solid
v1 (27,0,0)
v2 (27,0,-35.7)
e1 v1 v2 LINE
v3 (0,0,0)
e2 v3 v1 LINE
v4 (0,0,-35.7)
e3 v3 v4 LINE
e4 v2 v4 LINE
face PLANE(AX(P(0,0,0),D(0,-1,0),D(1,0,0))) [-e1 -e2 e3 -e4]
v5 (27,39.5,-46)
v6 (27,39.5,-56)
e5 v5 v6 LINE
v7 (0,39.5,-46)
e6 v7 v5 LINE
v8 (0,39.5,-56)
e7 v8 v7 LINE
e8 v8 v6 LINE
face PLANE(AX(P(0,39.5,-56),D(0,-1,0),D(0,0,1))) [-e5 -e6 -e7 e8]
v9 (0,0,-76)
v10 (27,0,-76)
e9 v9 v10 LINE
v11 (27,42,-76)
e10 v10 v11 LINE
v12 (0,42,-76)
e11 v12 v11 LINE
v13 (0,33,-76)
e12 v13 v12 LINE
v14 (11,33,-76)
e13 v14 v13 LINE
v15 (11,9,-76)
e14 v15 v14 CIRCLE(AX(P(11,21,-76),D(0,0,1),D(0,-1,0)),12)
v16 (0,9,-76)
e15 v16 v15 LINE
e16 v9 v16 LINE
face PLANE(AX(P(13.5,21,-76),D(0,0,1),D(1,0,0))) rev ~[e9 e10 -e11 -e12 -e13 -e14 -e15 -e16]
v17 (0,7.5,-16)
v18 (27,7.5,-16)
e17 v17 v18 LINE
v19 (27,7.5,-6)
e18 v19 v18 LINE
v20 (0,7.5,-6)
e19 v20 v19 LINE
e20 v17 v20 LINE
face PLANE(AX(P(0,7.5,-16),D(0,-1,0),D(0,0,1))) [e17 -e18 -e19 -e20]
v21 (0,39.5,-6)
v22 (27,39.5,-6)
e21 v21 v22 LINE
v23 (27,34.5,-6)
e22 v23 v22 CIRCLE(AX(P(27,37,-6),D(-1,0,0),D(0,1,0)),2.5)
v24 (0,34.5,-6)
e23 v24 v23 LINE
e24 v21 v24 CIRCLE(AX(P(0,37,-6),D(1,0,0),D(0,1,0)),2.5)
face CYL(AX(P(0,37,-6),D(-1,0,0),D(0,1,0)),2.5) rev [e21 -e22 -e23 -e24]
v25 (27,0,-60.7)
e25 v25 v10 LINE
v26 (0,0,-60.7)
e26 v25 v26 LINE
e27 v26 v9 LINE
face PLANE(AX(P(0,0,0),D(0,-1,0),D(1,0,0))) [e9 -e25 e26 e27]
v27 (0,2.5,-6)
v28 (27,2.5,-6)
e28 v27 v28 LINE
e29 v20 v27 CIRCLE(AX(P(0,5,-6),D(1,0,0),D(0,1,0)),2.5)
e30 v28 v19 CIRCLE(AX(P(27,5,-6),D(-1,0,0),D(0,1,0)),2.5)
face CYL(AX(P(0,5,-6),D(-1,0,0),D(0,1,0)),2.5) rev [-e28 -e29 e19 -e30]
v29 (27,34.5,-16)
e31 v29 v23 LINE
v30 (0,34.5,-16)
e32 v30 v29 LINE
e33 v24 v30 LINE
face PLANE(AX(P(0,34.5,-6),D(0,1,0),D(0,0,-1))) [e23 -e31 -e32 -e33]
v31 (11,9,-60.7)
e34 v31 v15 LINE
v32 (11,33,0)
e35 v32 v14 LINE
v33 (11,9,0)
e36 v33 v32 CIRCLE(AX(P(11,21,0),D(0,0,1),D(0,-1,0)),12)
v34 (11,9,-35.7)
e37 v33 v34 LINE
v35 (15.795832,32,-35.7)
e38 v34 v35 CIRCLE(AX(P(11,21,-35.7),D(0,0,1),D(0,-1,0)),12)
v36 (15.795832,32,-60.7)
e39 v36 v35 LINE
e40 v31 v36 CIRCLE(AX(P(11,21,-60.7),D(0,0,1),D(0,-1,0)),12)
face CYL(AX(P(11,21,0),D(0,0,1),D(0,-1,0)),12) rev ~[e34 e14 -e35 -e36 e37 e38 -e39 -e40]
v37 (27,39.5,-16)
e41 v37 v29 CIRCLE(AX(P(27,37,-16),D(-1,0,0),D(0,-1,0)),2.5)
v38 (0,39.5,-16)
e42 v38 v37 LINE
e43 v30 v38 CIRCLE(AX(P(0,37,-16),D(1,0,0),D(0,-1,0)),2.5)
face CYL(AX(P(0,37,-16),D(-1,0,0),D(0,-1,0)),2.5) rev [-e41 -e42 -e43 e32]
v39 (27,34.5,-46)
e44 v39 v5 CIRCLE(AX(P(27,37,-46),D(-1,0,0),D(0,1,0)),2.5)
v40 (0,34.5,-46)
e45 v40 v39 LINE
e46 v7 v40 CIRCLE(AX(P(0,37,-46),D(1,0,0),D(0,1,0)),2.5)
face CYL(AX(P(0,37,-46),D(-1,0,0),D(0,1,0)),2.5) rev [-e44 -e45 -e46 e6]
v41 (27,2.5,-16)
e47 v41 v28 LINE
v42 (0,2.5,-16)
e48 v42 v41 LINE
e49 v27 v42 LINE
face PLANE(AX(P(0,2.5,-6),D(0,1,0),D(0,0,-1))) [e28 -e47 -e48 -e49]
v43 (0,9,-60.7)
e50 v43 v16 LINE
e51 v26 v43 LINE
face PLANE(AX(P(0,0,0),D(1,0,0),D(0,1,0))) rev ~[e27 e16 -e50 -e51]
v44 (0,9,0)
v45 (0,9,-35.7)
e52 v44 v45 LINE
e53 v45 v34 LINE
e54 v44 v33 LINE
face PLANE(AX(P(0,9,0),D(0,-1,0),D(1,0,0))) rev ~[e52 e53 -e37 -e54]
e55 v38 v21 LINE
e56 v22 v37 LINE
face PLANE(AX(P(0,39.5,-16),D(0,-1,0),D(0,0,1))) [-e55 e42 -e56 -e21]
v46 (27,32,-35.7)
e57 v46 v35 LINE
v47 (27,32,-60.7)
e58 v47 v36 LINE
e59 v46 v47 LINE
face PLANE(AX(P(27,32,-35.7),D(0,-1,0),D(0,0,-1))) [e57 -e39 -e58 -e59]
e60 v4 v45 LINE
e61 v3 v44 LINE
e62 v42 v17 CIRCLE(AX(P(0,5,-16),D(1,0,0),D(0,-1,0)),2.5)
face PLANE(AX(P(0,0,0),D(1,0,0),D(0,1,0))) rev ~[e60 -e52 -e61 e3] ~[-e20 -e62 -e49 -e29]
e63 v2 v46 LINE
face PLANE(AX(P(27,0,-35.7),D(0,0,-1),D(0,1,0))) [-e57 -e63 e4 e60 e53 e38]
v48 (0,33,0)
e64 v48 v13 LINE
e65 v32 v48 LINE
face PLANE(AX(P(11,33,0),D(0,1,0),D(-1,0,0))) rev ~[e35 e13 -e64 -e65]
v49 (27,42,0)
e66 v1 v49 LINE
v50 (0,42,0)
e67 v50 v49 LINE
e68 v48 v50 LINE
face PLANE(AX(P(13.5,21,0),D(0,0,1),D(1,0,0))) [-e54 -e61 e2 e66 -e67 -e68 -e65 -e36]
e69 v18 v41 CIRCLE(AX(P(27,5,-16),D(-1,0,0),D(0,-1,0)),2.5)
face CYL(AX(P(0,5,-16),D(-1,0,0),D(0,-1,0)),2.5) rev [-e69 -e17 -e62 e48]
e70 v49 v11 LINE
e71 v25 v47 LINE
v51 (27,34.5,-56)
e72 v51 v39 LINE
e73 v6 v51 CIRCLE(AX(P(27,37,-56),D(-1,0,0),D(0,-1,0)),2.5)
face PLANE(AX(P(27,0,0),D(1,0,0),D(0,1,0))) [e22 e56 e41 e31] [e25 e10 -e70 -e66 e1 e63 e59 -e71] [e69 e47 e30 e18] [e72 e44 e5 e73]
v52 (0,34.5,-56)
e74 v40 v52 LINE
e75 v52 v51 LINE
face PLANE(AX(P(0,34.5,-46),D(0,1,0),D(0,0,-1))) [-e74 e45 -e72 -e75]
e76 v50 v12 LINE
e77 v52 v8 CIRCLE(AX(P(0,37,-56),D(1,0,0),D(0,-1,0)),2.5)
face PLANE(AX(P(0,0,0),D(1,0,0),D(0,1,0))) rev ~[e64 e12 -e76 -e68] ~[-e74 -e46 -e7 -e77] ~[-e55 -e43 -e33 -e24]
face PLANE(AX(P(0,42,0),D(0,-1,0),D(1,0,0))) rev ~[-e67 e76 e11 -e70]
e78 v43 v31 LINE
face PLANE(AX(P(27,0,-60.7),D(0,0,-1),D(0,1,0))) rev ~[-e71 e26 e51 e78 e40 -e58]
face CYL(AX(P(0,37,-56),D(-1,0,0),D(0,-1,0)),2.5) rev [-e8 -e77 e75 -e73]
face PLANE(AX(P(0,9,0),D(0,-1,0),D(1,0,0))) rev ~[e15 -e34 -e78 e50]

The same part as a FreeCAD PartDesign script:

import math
import FreeCAD as App
import Part
import Sketcher
Q = App.Units.Quantity


def add_polygon(sketch, points):
    """Adds a closed chain of lines whose ends are joined by coincident constraints."""
    first, n = sketch.GeometryCount, len(points)
    for a, b in zip(points, points[1:] + points[:1]):
        sketch.addGeometry(Part.LineSegment(App.Vector(*a, 0), App.Vector(*b, 0)), False)
    for i in range(n):
        sketch.addConstraint(Sketcher.Constraint("Coincident", first + i, 2, first + (i + 1) % n, 1))

doc = App.newDocument("Part")
body = doc.addObject("PartDesign::Body", "Body")

sketch1 = body.newObject("Sketcher::SketchObject", "Sketch")
sketch1.AttachmentSupport = (doc.getObject("XY_Plane"), [""])
sketch1.MapMode = "FlatFace"
add_polygon(sketch1, [(0, 42), (0, 0), (27, 0), (27, 42)])
sketch1.addConstraint([
    Sketcher.Constraint("Vertical", 0),
    Sketcher.Constraint("Horizontal", 1),
    Sketcher.Constraint("Vertical", 2),
    Sketcher.Constraint("Horizontal", 3),
    Sketcher.Constraint("Coincident", 0, 2, -1, 1),
    Sketcher.Constraint("DistanceX", 1, 1, 1, 2, Q("27 mm")),
    Sketcher.Constraint("DistanceY", 0, 2, 0, 1, Q("42 mm")),
])
pad1 = body.newObject("PartDesign::Pad", "Pad")
pad1.Profile = sketch1
pad1.Length = 76
pad1.Reversed = True

sketch2 = body.newObject("Sketcher::SketchObject", "Sketch001")
sketch2.AttachmentSupport = (doc.getObject("YZ_Plane"), [""])
sketch2.MapMode = "FlatFace"
sketch2.addGeometry([
    Part.LineSegment(App.Vector(39.5, -46, 0), App.Vector(39.5, -56, 0)),
    Part.ArcOfCircle(Part.Circle(App.Vector(37, -56, 0), App.Vector(0, 0, 1), 2.5), math.radians(180), math.radians(360)),
    Part.LineSegment(App.Vector(34.5, -56, 0), App.Vector(34.5, -46, 0)),
    Part.ArcOfCircle(Part.Circle(App.Vector(37, -46, 0), App.Vector(0, 0, 1), 2.5), math.radians(0), math.radians(180)),
    Part.LineSegment(App.Vector(39.5, -6, 0), App.Vector(39.5, -16, 0)),
    Part.ArcOfCircle(Part.Circle(App.Vector(37, -16, 0), App.Vector(0, 0, 1), 2.5), math.radians(180), math.radians(360)),
    Part.LineSegment(App.Vector(34.5, -16, 0), App.Vector(34.5, -6, 0)),
    Part.ArcOfCircle(Part.Circle(App.Vector(37, -6, 0), App.Vector(0, 0, 1), 2.5), math.radians(0), math.radians(180)),
    Part.LineSegment(App.Vector(7.5, -6, 0), App.Vector(7.5, -16, 0)),
    Part.ArcOfCircle(Part.Circle(App.Vector(5, -16, 0), App.Vector(0, 0, 1), 2.5), math.radians(180), math.radians(360)),
    Part.LineSegment(App.Vector(2.5, -16, 0), App.Vector(2.5, -6, 0)),
    Part.ArcOfCircle(Part.Circle(App.Vector(5, -6, 0), App.Vector(0, 0, 1), 2.5), math.radians(0), math.radians(180)),
], False)
sketch2.addConstraint([
    Sketcher.Constraint("Tangent", 0, 2, 1, 2),
    Sketcher.Constraint("Tangent", 1, 1, 2, 1),
    Sketcher.Constraint("Tangent", 2, 2, 3, 2),
    Sketcher.Constraint("Tangent", 3, 1, 0, 1),
    Sketcher.Constraint("Tangent", 4, 2, 5, 2),
    Sketcher.Constraint("Tangent", 5, 1, 6, 1),
    Sketcher.Constraint("Tangent", 6, 2, 7, 2),
    Sketcher.Constraint("Tangent", 7, 1, 4, 1),
    Sketcher.Constraint("Tangent", 8, 2, 9, 2),
    Sketcher.Constraint("Tangent", 9, 1, 10, 1),
    Sketcher.Constraint("Tangent", 10, 2, 11, 2),
    Sketcher.Constraint("Tangent", 11, 1, 8, 1),
    Sketcher.Constraint("Vertical", 0),
    Sketcher.Constraint("Vertical", 2),
    Sketcher.Constraint("Vertical", 4),
    Sketcher.Constraint("Vertical", 6),
    Sketcher.Constraint("Vertical", 8),
    Sketcher.Constraint("Vertical", 10),
    Sketcher.Constraint("Equal", 3, 5),
    Sketcher.Constraint("Equal", 7, 9),
    Sketcher.Constraint("Horizontal", 5, 3, 9, 3),
    Sketcher.Constraint("Horizontal", 7, 3, 11, 3),
    Sketcher.Constraint("Vertical", 3, 3, 5, 3),
    Sketcher.Constraint("Equal", 2, 4),
    Sketcher.Constraint("Radius", 1, Q("2.5 mm")),
    Sketcher.Constraint("DistanceY", 0, 2, 0, 1, Q("10 mm")),
    Sketcher.Constraint("DistanceX", -1, 1, 1, 3, Q("37 mm")),
    Sketcher.Constraint("DistanceY", 1, 3, -1, 1, Q("56 mm")),
    Sketcher.Constraint("DistanceY", 5, 3, -1, 1, Q("16 mm")),
    Sketcher.Constraint("DistanceX", -1, 1, 9, 3, Q("5 mm")),
])
pocket1 = body.newObject("PartDesign::Pocket", "Pocket")
pocket1.Profile = sketch2
pocket1.Type = "ThroughAll"
pocket1.Reversed = True

sketch3 = body.newObject("Sketcher::SketchObject", "Sketch002")
sketch3.AttachmentSupport = (doc.getObject("XY_Plane"), [""])
sketch3.MapMode = "FlatFace"
sketch3.addGeometry([
    Part.LineSegment(App.Vector(11, 33, 0), App.Vector(0, 33, 0)),
    Part.LineSegment(App.Vector(0, 33, 0), App.Vector(0, 9, 0)),
    Part.LineSegment(App.Vector(0, 9, 0), App.Vector(11, 9, 0)),
    Part.ArcOfCircle(Part.Circle(App.Vector(11, 21, 0), App.Vector(0, 0, 1), 12), math.radians(-90), math.radians(90)),
], False)
sketch3.addConstraint([
    Sketcher.Constraint("Coincident", 0, 2, 1, 1),
    Sketcher.Constraint("Coincident", 1, 2, 2, 1),
    Sketcher.Constraint("Tangent", 2, 2, 3, 1),
    Sketcher.Constraint("Tangent", 3, 2, 0, 1),
    Sketcher.Constraint("Horizontal", 0),
    Sketcher.Constraint("Vertical", 1),
    Sketcher.Constraint("Horizontal", 2),
    Sketcher.Constraint("PointOnObject", 0, 2, -2),
    Sketcher.Constraint("Radius", 3, Q("12 mm")),
    Sketcher.Constraint("DistanceX", 0, 2, 0, 1, Q("11 mm")),
    Sketcher.Constraint("DistanceY", -1, 1, 3, 3, Q("21 mm")),
])
pocket2 = body.newObject("PartDesign::Pocket", "Pocket001")
pocket2.Profile = sketch3
pocket2.Type = "ThroughAll"

sketch4 = body.newObject("Sketcher::SketchObject", "Sketch003")
sketch4.AttachmentSupport = (doc.getObject("YZ_Plane"), [""])
sketch4.MapMode = "FlatFace"
sketch4.AttachmentOffset = App.Placement(App.Vector(0, 0, 27), App.Rotation())
add_polygon(sketch4, [(32, -36), (0, -36), (0, -61), (32, -61)])
sketch4.addConstraint([
    Sketcher.Constraint("Horizontal", 0),
    Sketcher.Constraint("Vertical", 1),
    Sketcher.Constraint("Horizontal", 2),
    Sketcher.Constraint("Vertical", 3),
    Sketcher.Constraint("PointOnObject", 0, 2, -2),
    Sketcher.Constraint("DistanceX", 0, 2, 0, 1, Q("32 mm")),
    Sketcher.Constraint("DistanceY", 1, 2, 1, 1, Q("25 mm")),
    Sketcher.Constraint("DistanceY", 0, 2, -1, 1, Q("35.7 mm")),
])
pocket3 = body.newObject("PartDesign::Pocket", "Pocket002")
pocket3.Profile = sketch4
pocket3.Type = "ThroughAll"

doc.recompute()
